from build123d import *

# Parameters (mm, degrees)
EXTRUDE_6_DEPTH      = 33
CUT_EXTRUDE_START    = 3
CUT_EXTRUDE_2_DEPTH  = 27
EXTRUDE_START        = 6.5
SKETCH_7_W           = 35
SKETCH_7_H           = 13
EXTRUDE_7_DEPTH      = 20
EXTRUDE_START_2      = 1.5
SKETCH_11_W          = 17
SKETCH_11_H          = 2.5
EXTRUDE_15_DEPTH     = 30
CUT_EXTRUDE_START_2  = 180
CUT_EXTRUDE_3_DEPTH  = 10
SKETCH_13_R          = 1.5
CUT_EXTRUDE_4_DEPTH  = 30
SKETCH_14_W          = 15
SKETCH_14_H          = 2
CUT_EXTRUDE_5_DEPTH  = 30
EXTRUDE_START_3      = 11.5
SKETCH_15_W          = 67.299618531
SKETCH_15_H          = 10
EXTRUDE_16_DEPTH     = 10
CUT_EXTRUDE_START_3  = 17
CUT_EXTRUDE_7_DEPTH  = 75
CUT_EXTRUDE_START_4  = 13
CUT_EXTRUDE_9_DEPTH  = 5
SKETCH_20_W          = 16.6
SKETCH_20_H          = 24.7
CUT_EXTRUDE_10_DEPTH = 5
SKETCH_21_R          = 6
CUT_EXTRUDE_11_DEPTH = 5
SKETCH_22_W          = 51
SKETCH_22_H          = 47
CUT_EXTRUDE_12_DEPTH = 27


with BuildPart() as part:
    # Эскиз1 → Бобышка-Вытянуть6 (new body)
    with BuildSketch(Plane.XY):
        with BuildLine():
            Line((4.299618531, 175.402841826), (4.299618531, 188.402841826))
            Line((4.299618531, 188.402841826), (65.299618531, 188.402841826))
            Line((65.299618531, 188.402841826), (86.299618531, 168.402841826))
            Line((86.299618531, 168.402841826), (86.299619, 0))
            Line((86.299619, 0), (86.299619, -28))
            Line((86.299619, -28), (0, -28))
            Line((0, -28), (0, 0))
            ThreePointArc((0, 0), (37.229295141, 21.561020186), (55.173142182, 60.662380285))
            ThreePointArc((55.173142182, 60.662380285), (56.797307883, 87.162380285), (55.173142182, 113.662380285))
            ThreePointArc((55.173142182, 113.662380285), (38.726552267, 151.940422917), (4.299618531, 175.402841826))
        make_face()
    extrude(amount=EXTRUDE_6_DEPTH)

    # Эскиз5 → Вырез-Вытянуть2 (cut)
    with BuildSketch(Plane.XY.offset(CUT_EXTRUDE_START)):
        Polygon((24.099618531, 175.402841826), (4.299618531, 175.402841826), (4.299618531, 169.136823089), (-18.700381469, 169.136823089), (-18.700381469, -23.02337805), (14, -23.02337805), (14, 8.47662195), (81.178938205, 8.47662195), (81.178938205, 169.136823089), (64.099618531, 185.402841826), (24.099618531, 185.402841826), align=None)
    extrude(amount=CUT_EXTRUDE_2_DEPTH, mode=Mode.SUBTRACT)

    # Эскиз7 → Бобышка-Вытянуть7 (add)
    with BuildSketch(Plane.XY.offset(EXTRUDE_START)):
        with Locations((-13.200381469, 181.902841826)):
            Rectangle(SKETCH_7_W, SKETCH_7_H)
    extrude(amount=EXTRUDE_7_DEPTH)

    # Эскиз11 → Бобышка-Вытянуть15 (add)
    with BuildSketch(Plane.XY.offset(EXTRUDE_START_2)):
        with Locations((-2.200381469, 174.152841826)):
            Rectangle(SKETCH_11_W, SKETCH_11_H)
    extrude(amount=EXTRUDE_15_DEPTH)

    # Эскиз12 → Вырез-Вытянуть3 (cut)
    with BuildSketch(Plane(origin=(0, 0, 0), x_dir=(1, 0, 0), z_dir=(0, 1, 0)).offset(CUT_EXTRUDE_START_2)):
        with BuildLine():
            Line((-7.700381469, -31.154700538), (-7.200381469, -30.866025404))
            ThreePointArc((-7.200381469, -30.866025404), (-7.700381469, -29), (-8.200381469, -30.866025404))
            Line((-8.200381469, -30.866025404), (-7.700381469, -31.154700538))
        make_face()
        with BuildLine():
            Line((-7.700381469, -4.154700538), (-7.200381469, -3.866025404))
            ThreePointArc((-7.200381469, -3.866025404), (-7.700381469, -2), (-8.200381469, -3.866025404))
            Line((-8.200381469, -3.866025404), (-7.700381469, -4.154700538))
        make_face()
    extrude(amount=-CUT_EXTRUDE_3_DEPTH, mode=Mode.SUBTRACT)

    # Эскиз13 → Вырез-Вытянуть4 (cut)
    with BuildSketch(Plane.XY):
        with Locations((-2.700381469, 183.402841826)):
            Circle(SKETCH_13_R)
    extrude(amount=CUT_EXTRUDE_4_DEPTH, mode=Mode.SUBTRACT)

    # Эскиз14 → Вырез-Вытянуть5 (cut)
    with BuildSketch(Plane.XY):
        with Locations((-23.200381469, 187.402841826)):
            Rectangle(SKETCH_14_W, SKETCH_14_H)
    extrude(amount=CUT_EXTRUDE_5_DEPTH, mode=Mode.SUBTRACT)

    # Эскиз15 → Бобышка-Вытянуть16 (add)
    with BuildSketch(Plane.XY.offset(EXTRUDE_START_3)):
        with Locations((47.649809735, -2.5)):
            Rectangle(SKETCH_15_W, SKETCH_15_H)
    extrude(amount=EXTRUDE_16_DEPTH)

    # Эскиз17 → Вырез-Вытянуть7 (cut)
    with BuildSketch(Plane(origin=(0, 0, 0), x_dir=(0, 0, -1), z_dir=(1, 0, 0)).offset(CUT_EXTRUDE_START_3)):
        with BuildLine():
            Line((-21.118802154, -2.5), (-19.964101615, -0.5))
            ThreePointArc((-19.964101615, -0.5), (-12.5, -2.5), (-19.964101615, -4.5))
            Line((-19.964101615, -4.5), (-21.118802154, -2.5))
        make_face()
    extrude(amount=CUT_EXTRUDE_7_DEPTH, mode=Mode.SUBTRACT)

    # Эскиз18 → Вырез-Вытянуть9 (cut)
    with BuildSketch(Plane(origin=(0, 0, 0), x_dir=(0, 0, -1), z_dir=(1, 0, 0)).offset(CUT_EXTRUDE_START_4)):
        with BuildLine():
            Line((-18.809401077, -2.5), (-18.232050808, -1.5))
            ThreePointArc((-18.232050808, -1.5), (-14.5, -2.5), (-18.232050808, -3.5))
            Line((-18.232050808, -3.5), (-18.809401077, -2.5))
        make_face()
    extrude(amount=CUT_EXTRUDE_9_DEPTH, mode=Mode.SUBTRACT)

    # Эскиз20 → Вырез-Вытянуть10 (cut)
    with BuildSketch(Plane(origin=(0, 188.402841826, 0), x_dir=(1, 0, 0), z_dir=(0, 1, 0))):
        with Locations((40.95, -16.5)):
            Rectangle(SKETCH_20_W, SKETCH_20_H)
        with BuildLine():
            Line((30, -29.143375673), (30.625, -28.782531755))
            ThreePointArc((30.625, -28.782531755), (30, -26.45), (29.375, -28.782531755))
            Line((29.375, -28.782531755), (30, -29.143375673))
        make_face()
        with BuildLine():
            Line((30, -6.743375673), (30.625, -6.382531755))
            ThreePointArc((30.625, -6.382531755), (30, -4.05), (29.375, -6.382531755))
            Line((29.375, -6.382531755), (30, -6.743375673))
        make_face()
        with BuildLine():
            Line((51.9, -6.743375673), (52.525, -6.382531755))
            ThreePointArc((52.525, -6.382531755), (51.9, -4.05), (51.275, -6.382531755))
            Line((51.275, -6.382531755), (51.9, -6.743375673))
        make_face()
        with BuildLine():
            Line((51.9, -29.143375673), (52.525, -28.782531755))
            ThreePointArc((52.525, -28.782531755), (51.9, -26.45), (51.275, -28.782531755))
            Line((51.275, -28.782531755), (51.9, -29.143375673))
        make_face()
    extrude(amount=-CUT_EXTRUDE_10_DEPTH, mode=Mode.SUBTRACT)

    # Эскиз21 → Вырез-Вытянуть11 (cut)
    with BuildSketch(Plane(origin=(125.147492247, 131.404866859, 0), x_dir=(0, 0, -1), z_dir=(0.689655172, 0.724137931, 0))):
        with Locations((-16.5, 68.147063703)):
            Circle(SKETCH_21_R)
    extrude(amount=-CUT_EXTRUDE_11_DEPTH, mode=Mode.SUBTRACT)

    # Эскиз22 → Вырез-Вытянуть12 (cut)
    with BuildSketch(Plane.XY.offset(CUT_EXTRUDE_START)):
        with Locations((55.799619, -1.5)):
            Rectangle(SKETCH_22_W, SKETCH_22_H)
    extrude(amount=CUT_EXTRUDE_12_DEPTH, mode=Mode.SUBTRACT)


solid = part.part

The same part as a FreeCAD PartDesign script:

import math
import FreeCAD as App
import Part
import Sketcher
from FreeCAD import Vector
Q = App.Units.Quantity


def add_polygon(sketch, points):
    """Adds a closed chain of lines whose ends are joined by coincident constraints."""
    first, n = sketch.GeometryCount, len(points)
    for a, b in zip(points, points[1:] + points[:1]):
        sketch.addGeometry(Part.LineSegment(App.Vector(*a, 0), App.Vector(*b, 0)), False)
    for i in range(n):
        sketch.addConstraint(Sketcher.Constraint("Coincident", first + i, 2, first + (i + 1) % n, 1))

doc = App.newDocument("Part")
body = doc.addObject("PartDesign::Body", "Body")

sketch1 = body.newObject("Sketcher::SketchObject", "Sketch")
sketch1.AttachmentSupport = (doc.getObject("XY_Plane"), [""])
sketch1.MapMode = "FlatFace"
sketch1.addGeometry(Part.LineSegment(Vector(4, 188, 0), Vector(4, 175, 0)), False)
sketch1.addGeometry(Part.ArcOfCircle(Part.Circle(Vector(-19, 105, 0), Vector(0, 0, 1), 75), math.radians(7), math.radians(72)), False)
sketch1.addGeometry(Part.ArcOfCircle(Part.Circle(Vector(-160, 87, 0), Vector(0, 0, 1), 217), math.radians(-7.01), math.radians(7.01)), False)
sketch1.addGeometry(Part.ArcOfCircle(Part.Circle(Vector(-15, 69, 0), Vector(0, 0, 1), 71), math.radians(-78), math.radians(-7)), False)
sketch1.addGeometry(Part.LineSegment(Vector(0, 0, 0), Vector(0, -28, 0)), False)
sketch1.addGeometry(Part.LineSegment(Vector(0, -28, 0), Vector(86, -28, 0)), False)
sketch1.addGeometry(Part.LineSegment(Vector(86, -28, 0), Vector(86, 0, 0)), False)
sketch1.addGeometry(Part.LineSegment(Vector(86, 0, 0), Vector(86, 168, 0)), False)
sketch1.addGeometry(Part.LineSegment(Vector(86, 168, 0), Vector(65, 188, 0)), False)
sketch1.addGeometry(Part.LineSegment(Vector(65, 188, 0), Vector(4, 188, 0)), False)
sketch1.addConstraint(Sketcher.Constraint("Coincident", 0, 2, 1, 2))
sketch1.addConstraint(Sketcher.Constraint("Tangent", 1, 1, 2, 2))
sketch1.addConstraint(Sketcher.Constraint("Tangent", 2, 1, 3, 2))
sketch1.addConstraint(Sketcher.Constraint("Coincident", 3, 1, 4, 1))
sketch1.addConstraint(Sketcher.Constraint("Coincident", 4, 2, 5, 1))
sketch1.addConstraint(Sketcher.Constraint("Coincident", 5, 2, 6, 1))
sketch1.addConstraint(Sketcher.Constraint("Coincident", 6, 2, 7, 1))
sketch1.addConstraint(Sketcher.Constraint("Coincident", 7, 2, 8, 1))
sketch1.addConstraint(Sketcher.Constraint("Coincident", 8, 2, 9, 1))
sketch1.addConstraint(Sketcher.Constraint("Coincident", 9, 2, 0, 1))
sketch1.addConstraint(Sketcher.Constraint("Vertical", 0))
sketch1.addConstraint(Sketcher.Constraint("Vertical", 4))
sketch1.addConstraint(Sketcher.Constraint("Horizontal", 5))
sketch1.addConstraint(Sketcher.Constraint("Vertical", 6))
sketch1.addConstraint(Sketcher.Constraint("Vertical", 7))
sketch1.addConstraint(Sketcher.Constraint("Horizontal", 9))
sketch1.addConstraint(Sketcher.Constraint("Coincident", 3, 1, -1, 1))
sketch1.addConstraint(Sketcher.Constraint("PointOnObject", 6, 2, -1))
sketch1.addConstraint(Sketcher.Constraint("Vertical", 1, 1, 2, 1))
sketch1.addConstraint(Sketcher.Constraint("Radius", 2, Q("217 mm")))
sketch1.addConstraint(Sketcher.Constraint("Radius", 3, Q("71 mm")))
sketch1.addConstraint(Sketcher.Constraint("Radius", 1, Q("74.5 mm")))
sketch1.addConstraint(Sketcher.Constraint("DistanceX", 9, 2, 9, 1, Q("61 mm")))
sketch1.addConstraint(Sketcher.Constraint("DistanceY", 0, 2, 0, 1, Q("13 mm")))
sketch1.addConstraint(Sketcher.Constraint("DistanceY", 4, 2, 4, 1, Q("28 mm")))
sketch1.addConstraint(Sketcher.Constraint("Distance", 8, Q("29 mm")))
sketch1.addConstraint(Sketcher.Constraint("DistanceY", 2, 1, 1, 1, Q("53 mm")))
sketch1.addConstraint(Sketcher.Constraint("DistanceX", 0, 2, 7, 2, Q("82 mm")))
sketch1.addConstraint(Sketcher.Constraint("DistanceX", 5, 1, 5, 2, Q("86.299619 mm")))
sketch1.addConstraint(Sketcher.Constraint("DistanceY", 7, 1, 7, 2, Q("168.402842 mm")))
pad1 = body.newObject("PartDesign::Pad", "Pad")
pad1.Profile = sketch1
pad1.Length = 33

sketch2 = body.newObject("Sketcher::SketchObject", "Sketch001")
sketch2.AttachmentSupport = (doc.getObject("XY_Plane"), [""])
sketch2.MapMode = "FlatFace"
sketch2.AttachmentOffset = App.Placement(Vector(0, 0, 3), App.Rotation())
add_polygon(sketch2, [(24, 175), (4, 175), (4, 169), (-19, 169), (-19, -23), (14, -23), (14, 8), (81, 8), (81, 169), (64, 185), (24, 185)])
sketch2.addConstraint(Sketcher.Constraint("Horizontal", 0))
sketch2.addConstraint(Sketcher.Constraint("Vertical", 1))
sketch2.addConstraint(Sketcher.Constraint("Horizontal", 2))
sketch2.addConstraint(Sketcher.Constraint("Vertical", 3))
sketch2.addConstraint(Sketcher.Constraint("Horizontal", 4))
sketch2.addConstraint(Sketcher.Constraint("Vertical", 5))
sketch2.addConstraint(Sketcher.Constraint("Horizontal", 6))
sketch2.addConstraint(Sketcher.Constraint("Vertical", 7))
sketch2.addConstraint(Sketcher.Constraint("Horizontal", 9))
sketch2.addConstraint(Sketcher.Constraint("Vertical", 10))
sketch2.addConstraint(Sketcher.Constraint("Horizontal", 2, 2, 7, 2))
sketch2.addConstraint(Sketcher.Constraint("DistanceX", 2, 2, 2, 1, Q("23 mm")))
sketch2.addConstraint(Sketcher.Constraint("DistanceX", 9, 2, 9, 1, Q("40 mm")))
sketch2.addConstraint(Sketcher.Constraint("DistanceY", 10, 2, 10, 1, Q("10 mm")))
sketch2.addConstraint(Sketcher.Constraint("DistanceX", 0, 2, 0, 1, Q("19.8 mm")))
sketch2.addConstraint(Sketcher.Constraint("DistanceY", 5, 1, 5, 2, Q("31.5 mm")))
sketch2.addConstraint(Sketcher.Constraint("DistanceX", -1, 1, 4, 2, Q("14 mm")))
sketch2.addConstraint(Sketcher.Constraint("DistanceY", 3, 2, 3, 1, Q("192.160201 mm")))
sketch2.addConstraint(Sketcher.Constraint("DistanceX", 4, 1, 4, 2, Q("32.700381 mm")))
sketch2.addConstraint(Sketcher.Constraint("DistanceX", 6, 1, 6, 2, Q("67.178938 mm")))
sketch2.addConstraint(Sketcher.Constraint("DistanceY", 1, 2, 1, 1, Q("6.266019 mm")))
sketch2.addConstraint(Sketcher.Constraint("DistanceY", -1, 1, 0, 2, Q("175.402842 mm")))
pocket1 = body.newObject("PartDesign::Pocket", "Pocket")
pocket1.Profile = sketch2
pocket1.Length = 27
pocket1.Reversed = True

sketch3 = body.newObject("Sketcher::SketchObject", "Sketch002")
sketch3.AttachmentSupport = (doc.getObject("XY_Plane"), [""])
sketch3.MapMode = "FlatFace"
sketch3.AttachmentOffset = App.Placement(Vector(0, 0, 6.5), App.Rotation())
add_polygon(sketch3, [(-31, 188), (-31, 175), (4, 175), (4, 188)])
sketch3.addConstraint(Sketcher.Constraint("Vertical", 0))
sketch3.addConstraint(Sketcher.Constraint("Horizontal", 1))
sketch3.addConstraint(Sketcher.Constraint("Vertical", 2))
sketch3.addConstraint(Sketcher.Constraint("Horizontal", 3))
sketch3.addConstraint(Sketcher.Constraint("DistanceX", 1, 1, 1, 2, Q("35 mm")))
sketch3.addConstraint(Sketcher.Constraint("DistanceY", 0, 2, 0, 1, Q("13 mm")))
sketch3.addConstraint(Sketcher.Constraint("DistanceX", 0, 2, -1, 1, Q("30.700381 mm")))
sketch3.addConstraint(Sketcher.Constraint("DistanceY", -1, 1, 0, 2, Q("175.402842 mm")))
pad2 = body.newObject("PartDesign::Pad", "Pad001")
pad2.Profile = sketch3
pad2.Length = 20

sketch4 = body.newObject("Sketcher::SketchObject", "Sketch003")
sketch4.AttachmentSupport = (doc.getObject("XY_Plane"), [""])
sketch4.MapMode = "FlatFace"
sketch4.AttachmentOffset = App.Placement(Vector(0, 0, 1.5), App.Rotation())
add_polygon(sketch4, [(-10.7, 175.4), (-10.7, 172.9), (6.3, 172.9), (6.3, 175.4)])
sketch4.addConstraint(Sketcher.Constraint("Vertical", 0))
sketch4.addConstraint(Sketcher.Constraint("Horizontal", 1))
sketch4.addConstraint(Sketcher.Constraint("Vertical", 2))
sketch4.addConstraint(Sketcher.Constraint("Horizontal", 3))
sketch4.addConstraint(Sketcher.Constraint("DistanceX", 1, 1, 1, 2, Q("17 mm")))
sketch4.addConstraint(Sketcher.Constraint("DistanceY", 0, 2, 0, 1, Q("2.5 mm")))
sketch4.addConstraint(Sketcher.Constraint("DistanceX", 0, 2, -1, 1, Q("10.700381 mm")))
sketch4.addConstraint(Sketcher.Constraint("DistanceY", -1, 1, 0, 2, Q("172.902842 mm")))
pad3 = body.newObject("PartDesign::Pad", "Pad002")
pad3.Profile = sketch4
pad3.Length = 30

sketch5 = body.newObject("Sketcher::SketchObject", "Sketch004")
sketch5.AttachmentSupport = (doc.getObject("XZ_Plane"), [""])
sketch5.MapMode = "FlatFace"
sketch5.AttachmentOffset = App.Placement(Vector(0, 0, -180), App.Rotation())
sketch5.addGeometry(Part.LineSegment(Vector(-7.7, 31.2, 0), Vector(-7.2, 30.9, 0)), False)
sketch5.addGeometry(Part.ArcOfCircle(Part.Circle(Vector(-7.7, 30, 0), Vector(0, 0, 1), 1), math.radians(120), math.radians(420)), False)
sketch5.addGeometry(Part.LineSegment(Vector(-8.2, 30.9, 0), Vector(-7.7, 31.2, 0)), False)
sketch5.addGeometry(Part.LineSegment(Vector(-7.7, 4.2, 0), Vector(-7.2, 3.9, 0)), False)
sketch5.addGeometry(Part.ArcOfCircle(Part.Circle(Vector(-7.7, 3, 0), Vector(0, 0, 1), 1), math.radians(120), math.radians(420)), False)
sketch5.addGeometry(Part.LineSegment(Vector(-8.2, 3.9, 0), Vector(-7.7, 4.2, 0)), False)
sketch5.addConstraint(Sketcher.Constraint("Tangent", 0, 2, 1, 2))
sketch5.addConstraint(Sketcher.Constraint("Tangent", 1, 1, 2, 1))
sketch5.addConstraint(Sketcher.Constraint("Coincident", 2, 2, 0, 1))
sketch5.addConstraint(Sketcher.Constraint("Tangent", 3, 2, 4, 2))
sketch5.addConstraint(Sketcher.Constraint("Tangent", 4, 1, 5, 1))
sketch5.addConstraint(Sketcher.Constraint("Coincident", 5, 2, 3, 1))
sketch5.addConstraint(Sketcher.Constraint("Equal", 1, 4))
sketch5.addConstraint(Sketcher.Constraint("Parallel", 0, 3))
sketch5.addConstraint(Sketcher.Constraint("Parallel", 2, 5))
sketch5.addConstraint(Sketcher.Constraint("Horizontal", 0, 2, 1, 1))
sketch5.addConstraint(Sketcher.Constraint("Vertical", 1, 3, 4, 3))
sketch5.addConstraint(Sketcher.Constraint("Radius", 1, Q("1 mm")))
sketch5.addConstraint(Sketcher.Constraint("Angle", 0, Q("-30 deg")))
sketch5.addConstraint(Sketcher.Constraint("DistanceY", -1, 1, 1, 3, Q("30 mm")))
sketch5.addConstraint(Sketcher.Constraint("DistanceY", -1, 1, 4, 3, Q("3 mm")))
sketch5.addConstraint(Sketcher.Constraint("DistanceX", 1, 3, -1, 1, Q("7.700381 mm")))
pocket2 = body.newObject("PartDesign::Pocket", "Pocket001")
pocket2.Profile = sketch5
pocket2.Length = 10
pocket2.Reversed = True

sketch6 = body.newObject("Sketcher::SketchObject", "Sketch005")
sketch6.AttachmentSupport = (doc.getObject("XY_Plane"), [""])
sketch6.MapMode = "FlatFace"
sketch6.addGeometry(Part.Circle(Vector(-2.7, 183.4, 0), Vector(0, 0, 1), 1.5), False)
sketch6.addConstraint(Sketcher.Constraint("Diameter", 0, Q("3 mm")))
sketch6.addConstraint(Sketcher.Constraint("DistanceX", 0, 3, -1, 1, Q("2.700381 mm")))
sketch6.addConstraint(Sketcher.Constraint("DistanceY", -1, 1, 0, 3, Q("183.402842 mm")))
pocket3 = body.newObject("PartDesign::Pocket", "Pocket002")
pocket3.Profile = sketch6
pocket3.Length = 30
pocket3.Reversed = True

sketch7 = body.newObject("Sketcher::SketchObject", "Sketch006")
sketch7.AttachmentSupport = (doc.getObject("XY_Plane"), [""])
sketch7.MapMode = "FlatFace"
add_polygon(sketch7, [(-30.7, 188.4), (-30.7, 186.4), (-15.7, 186.4), (-15.7, 188.4)])
sketch7.addConstraint(Sketcher.Constraint("Vertical", 0))
sketch7.addConstraint(Sketcher.Constraint("Horizontal", 1))
sketch7.addConstraint(Sketcher.Constraint("Vertical", 2))
sketch7.addConstraint(Sketcher.Constraint("Horizontal", 3))
sketch7.addConstraint(Sketcher.Constraint("DistanceX", 1, 1, 1, 2, Q("15 mm")))
sketch7.addConstraint(Sketcher.Constraint("DistanceY", 0, 2, 0, 1, Q("2 mm")))
sketch7.addConstraint(Sketcher.Constraint("DistanceX", 0, 2, -1, 1, Q("30.700381 mm")))
sketch7.addConstraint(Sketcher.Constraint("DistanceY", -1, 1, 0, 2, Q("186.402842 mm")))
pocket4 = body.newObject("PartDesign::Pocket", "Pocket003")
pocket4.Profile = sketch7
pocket4.Length = 30
pocket4.Reversed = True

sketch8 = body.newObject("Sketcher::SketchObject", "Sketch007")
sketch8.AttachmentSupport = (doc.getObject("XY_Plane"), [""])
sketch8.MapMode = "FlatFace"
sketch8.AttachmentOffset = App.Placement(Vector(0, 0, 11.5), App.Rotation())
add_polygon(sketch8, [(14, 2), (14, -8), (81, -8), (81, 2)])
sketch8.addConstraint(Sketcher.Constraint("Vertical", 0))
sketch8.addConstraint(Sketcher.Constraint("Horizontal", 1))
sketch8.addConstraint(Sketcher.Constraint("Vertical", 2))
sketch8.addConstraint(Sketcher.Constraint("Horizontal", 3))
sketch8.addConstraint(Sketcher.Constraint("DistanceY", 0, 2, 0, 1, Q("10 mm")))
sketch8.addConstraint(Sketcher.Constraint("DistanceX", -1, 1, 0, 2, Q("14 mm")))
sketch8.addConstraint(Sketcher.Constraint("DistanceY", 0, 2, -1, 1, Q("7.5 mm")))
sketch8.addConstraint(Sketcher.Constraint("DistanceX", 1, 1, 1, 2, Q("67.299619 mm")))
pad4 = body.newObject("PartDesign::Pad", "Pad003")
pad4.Profile = sketch8
pad4.Length = 10

sketch9 = body.newObject("Sketcher::SketchObject", "Sketch008")
sketch9.AttachmentSupport = (doc.getObject("YZ_Plane"), [""])
sketch9.MapMode = "FlatFace"
sketch9.AttachmentOffset = App.Placement(Vector(0, 0, 17), App.Rotation())
sketch9.addGeometry(Part.LineSegment(Vector(-0.5, 20, 0), Vector(-2.5, 21.1, 0)), False)
sketch9.addGeometry(Part.LineSegment(Vector(-2.5, 21.1, 0), Vector(-4.5, 20, 0)), False)
sketch9.addGeometry(Part.ArcOfCircle(Part.Circle(Vector(-2.5, 16.5, 0), Vector(0, 0, 1), 4), math.radians(120), math.radians(420)), False)
sketch9.addConstraint(Sketcher.Constraint("Coincident", 0, 2, 1, 1))
sketch9.addConstraint(Sketcher.Constraint("Tangent", 1, 2, 2, 1))
sketch9.addConstraint(Sketcher.Constraint("Tangent", 2, 2, 0, 1))
sketch9.addConstraint(Sketcher.Constraint("Horizontal", 1, 2, 2, 2))
sketch9.addConstraint(Sketcher.Constraint("Radius", 2, Q("4 mm")))
sketch9.addConstraint(Sketcher.Constraint("Angle", 0, Q("150 deg")))
sketch9.addConstraint(Sketcher.Constraint("DistanceX", 2, 3, -1, 1, Q("2.5 mm")))
sketch9.addConstraint(Sketcher.Constraint("DistanceY", -1, 1, 2, 3, Q("16.5 mm")))
pocket5 = body.newObject("PartDesign::Pocket", "Pocket004")
pocket5.Profile = sketch9
pocket5.Length = 75
pocket5.Reversed = True

sketch10 = body.newObject("Sketcher::SketchObject", "Sketch009")
sketch10.AttachmentSupport = (doc.getObject("YZ_Plane"), [""])
sketch10.MapMode = "FlatFace"
sketch10.AttachmentOffset = App.Placement(Vector(0, 0, 13), App.Rotation())
sketch10.addGeometry(Part.LineSegment(Vector(-1.5, 18.2, 0), Vector(-2.5, 18.8, 0)), False)
sketch10.addGeometry(Part.LineSegment(Vector(-2.5, 18.8, 0), Vector(-3.5, 18.2, 0)), False)
sketch10.addGeometry(Part.ArcOfCircle(Part.Circle(Vector(-2.5, 16.5, 0), Vector(0, 0, 1), 2), math.radians(120), math.radians(420)), False)
sketch10.addConstraint(Sketcher.Constraint("Coincident", 0, 2, 1, 1))
sketch10.addConstraint(Sketcher.Constraint("Tangent", 1, 2, 2, 1))
sketch10.addConstraint(Sketcher.Constraint("Tangent", 2, 2, 0, 1))
sketch10.addConstraint(Sketcher.Constraint("Horizontal", 1, 2, 2, 2))
sketch10.addConstraint(Sketcher.Constraint("Radius", 2, Q("2 mm")))
sketch10.addConstraint(Sketcher.Constraint("Angle", 0, Q("150 deg")))
sketch10.addConstraint(Sketcher.Constraint("DistanceX", 2, 3, -1, 1, Q("2.5 mm")))
sketch10.addConstraint(Sketcher.Constraint("DistanceY", -1, 1, 2, 3, Q("16.5 mm")))
pocket6 = body.newObject("PartDesign::Pocket", "Pocket005")
pocket6.Profile = sketch10
pocket6.Length = 5
pocket6.Reversed = True

sketch11 = body.newObject("Sketcher::SketchObject", "Sketch010")
sketch11.AttachmentSupport = (doc.getObject("XZ_Plane"), [""])
sketch11.MapMode = "FlatFace"
sketch11.AttachmentOffset = App.Placement(Vector(0, 0, -188.402842), App.Rotation())
add_polygon(sketch11, [(32.6, 4.2), (32.6, 28.9), (49.2, 28.9), (49.2, 4.2)])
sketch11.addGeometry(Part.LineSegment(Vector(30, 29.1, 0), Vector(30.6, 28.8, 0)), False)
sketch11.addGeometry(Part.ArcOfCircle(Part.Circle(Vector(30, 27.7, 0), Vector(0, 0, 1), 1.2), math.radians(120), math.radians(420)), False)
sketch11.addGeometry(Part.LineSegment(Vector(29.4, 28.8, 0), Vector(30, 29.1, 0)), False)
sketch11.addGeometry(Part.LineSegment(Vector(30, 6.7, 0), Vector(30.6, 6.4, 0)), False)
sketch11.addGeometry(Part.ArcOfCircle(Part.Circle(Vector(30, 5.3, 0), Vector(0, 0, 1), 1.2), math.radians(120), math.radians(420)), False)
sketch11.addGeometry(Part.LineSegment(Vector(29.4, 6.4, 0), Vector(30, 6.7, 0)), False)
sketch11.addGeometry(Part.LineSegment(Vector(51.9, 6.7, 0), Vector(52.5, 6.4, 0)), False)
sketch11.addGeometry(Part.ArcOfCircle(Part.Circle(Vector(51.9, 5.3, 0), Vector(0, 0, 1), 1.2), math.radians(120), math.radians(420)), False)
sketch11.addGeometry(Part.LineSegment(Vector(51.3, 6.4, 0), Vector(51.9, 6.7, 0)), False)
sketch11.addGeometry(Part.LineSegment(Vector(51.9, 29.1, 0), Vector(52.5, 28.8, 0)), False)
sketch11.addGeometry(Part.ArcOfCircle(Part.Circle(Vector(51.9, 27.7, 0), Vector(0, 0, 1), 1.2), math.radians(120), math.radians(420)), False)
sketch11.addGeometry(Part.LineSegment(Vector(51.3, 28.8, 0), Vector(51.9, 29.1, 0)), False)
sketch11.addConstraint(Sketcher.Constraint("Tangent", 4, 2, 5, 2))
sketch11.addConstraint(Sketcher.Constraint("Tangent", 5, 1, 6, 1))
sketch11.addConstraint(Sketcher.Constraint("Coincident", 6, 2, 4, 1))
sketch11.addConstraint(Sketcher.Constraint("Tangent", 7, 2, 8, 2))
sketch11.addConstraint(Sketcher.Constraint("Tangent", 8, 1, 9, 1))
sketch11.addConstraint(Sketcher.Constraint("Coincident", 9, 2, 7, 1))
sketch11.addConstraint(Sketcher.Constraint("Tangent", 10, 2, 11, 2))
sketch11.addConstraint(Sketcher.Constraint("Tangent", 11, 1, 12, 1))
sketch11.addConstraint(Sketcher.Constraint("Coincident", 12, 2, 10, 1))
sketch11.addConstraint(Sketcher.Constraint("Tangent", 13, 2, 14, 2))
sketch11.addConstraint(Sketcher.Constraint("Tangent", 14, 1, 15, 1))
sketch11.addConstraint(Sketcher.Constraint("Coincident", 15, 2, 13, 1))
sketch11.addConstraint(Sketcher.Constraint("Vertical", 0))
sketch11.addConstraint(Sketcher.Constraint("Horizontal", 1))
sketch11.addConstraint(Sketcher.Constraint("Vertical", 2))
sketch11.addConstraint(Sketcher.Constraint("Horizontal", 3))
sketch11.addConstraint(Sketcher.Constraint("Equal", 5, 8))
sketch11.addConstraint(Sketcher.Constraint("Equal", 8, 11))
sketch11.addConstraint(Sketcher.Constraint("Equal", 11, 14))
sketch11.addConstraint(Sketcher.Constraint("Parallel", 4, 7))
sketch11.addConstraint(Sketcher.Constraint("Parallel", 6, 9))
sketch11.addConstraint(Sketcher.Constraint("Parallel", 7, 10))
sketch11.addConstraint(Sketcher.Constraint("Parallel", 9, 12))
sketch11.addConstraint(Sketcher.Constraint("Parallel", 10, 13))
sketch11.addConstraint(Sketcher.Constraint("Parallel", 12, 15))
sketch11.addConstraint(Sketcher.Constraint("Horizontal", 8, 3, 11, 3))
sketch11.addConstraint(Sketcher.Constraint("Horizontal", 5, 3, 14, 3))
sketch11.addConstraint(Sketcher.Constraint("Horizontal", 4, 2, 5, 1))
sketch11.addConstraint(Sketcher.Constraint("Vertical", 5, 3, 8, 3))
sketch11.addConstraint(Sketcher.Constraint("Vertical", 11, 3, 14, 3))
sketch11.addConstraint(Sketcher.Constraint("Angle", 4, Q("-30 deg")))
sketch11.addConstraint(Sketcher.Constraint("Radius", 5, Q("1.25 mm")))
sketch11.addConstraint(Sketcher.Constraint("DistanceX", 1, 1, 1, 2, Q("16.6 mm")))
sketch11.addConstraint(Sketcher.Constraint("DistanceY", 0, 1, 0, 2, Q("24.7 mm")))
sketch11.addConstraint(Sketcher.Constraint("DistanceX", -1, 1, 5, 3, Q("30 mm")))
sketch11.addConstraint(Sketcher.Constraint("DistanceY", -1, 1, 5, 3, Q("27.7 mm")))
sketch11.addConstraint(Sketcher.Constraint("DistanceY", -1, 1, 8, 3, Q("5.3 mm")))
sketch11.addConstraint(Sketcher.Constraint("DistanceX", -1, 1, 11, 3, Q("51.9 mm")))
sketch11.addConstraint(Sketcher.Constraint("DistanceX", -1, 1, 0, 2, Q("32.65 mm")))
sketch11.addConstraint(Sketcher.Constraint("DistanceY", -1, 1, 0, 2, Q("28.85 mm")))
pocket7 = body.newObject("PartDesign::Pocket", "Pocket006")
pocket7.Profile = sketch11
pocket7.Length = 5
pocket7.Reversed = True

sketch12 = body.newObject("Sketcher::SketchObject", "Sketch011")
sketch12.Placement = App.Placement(Vector(125.147492, 131.404867, 0), App.Rotation(Vector(0, 0, -1), Vector(-0.724137931, 0.689655172, 0), Vector(0.689655172, 0.724137931, 0), "ZXY"))
sketch12.addGeometry(Part.Circle(Vector(-16, 68, 0), Vector(0, 0, 1), 6), False)
sketch12.addConstraint(Sketcher.Constraint("Diameter", 0, Q("12 mm")))
sketch12.addConstraint(Sketcher.Constraint("DistanceX", 0, 3, -1, 1, Q("16.5 mm")))
sketch12.addConstraint(Sketcher.Constraint("DistanceY", -1, 1, 0, 3, Q("68.147064 mm")))
pocket8 = body.newObject("PartDesign::Pocket", "Pocket007")
pocket8.Profile = sketch12
pocket8.Length = 5

sketch13 = body.newObject("Sketcher::SketchObject", "Sketch012")
sketch13.AttachmentSupport = (doc.getObject("XY_Plane"), [""])
sketch13.MapMode = "FlatFace"
sketch13.AttachmentOffset = App.Placement(Vector(0, 0, 3), App.Rotation())
add_polygon(sketch13, [(30, 22), (30, -25), (81, -25), (81, 22)])
sketch13.addConstraint(Sketcher.Constraint("Vertical", 0))
sketch13.addConstraint(Sketcher.Constraint("Horizontal", 1))
sketch13.addConstraint(Sketcher.Constraint("Vertical", 2))
sketch13.addConstraint(Sketcher.Constraint("Horizontal", 3))
sketch13.addConstraint(Sketcher.Constraint("DistanceX", 1, 1, 1, 2, Q("51 mm")))
sketch13.addConstraint(Sketcher.Constraint("DistanceY", 0, 2, 0, 1, Q("47 mm")))
sketch13.addConstraint(Sketcher.Constraint("DistanceY", 0, 2, -1, 1, Q("25 mm")))
sketch13.addConstraint(Sketcher.Constraint("DistanceX", -1, 1, 0, 2, Q("30.299619 mm")))
pocket9 = body.newObject("PartDesign::Pocket", "Pocket008")
pocket9.Profile = sketch13
pocket9.Length = 27
pocket9.Reversed = True

doc.recompute()
